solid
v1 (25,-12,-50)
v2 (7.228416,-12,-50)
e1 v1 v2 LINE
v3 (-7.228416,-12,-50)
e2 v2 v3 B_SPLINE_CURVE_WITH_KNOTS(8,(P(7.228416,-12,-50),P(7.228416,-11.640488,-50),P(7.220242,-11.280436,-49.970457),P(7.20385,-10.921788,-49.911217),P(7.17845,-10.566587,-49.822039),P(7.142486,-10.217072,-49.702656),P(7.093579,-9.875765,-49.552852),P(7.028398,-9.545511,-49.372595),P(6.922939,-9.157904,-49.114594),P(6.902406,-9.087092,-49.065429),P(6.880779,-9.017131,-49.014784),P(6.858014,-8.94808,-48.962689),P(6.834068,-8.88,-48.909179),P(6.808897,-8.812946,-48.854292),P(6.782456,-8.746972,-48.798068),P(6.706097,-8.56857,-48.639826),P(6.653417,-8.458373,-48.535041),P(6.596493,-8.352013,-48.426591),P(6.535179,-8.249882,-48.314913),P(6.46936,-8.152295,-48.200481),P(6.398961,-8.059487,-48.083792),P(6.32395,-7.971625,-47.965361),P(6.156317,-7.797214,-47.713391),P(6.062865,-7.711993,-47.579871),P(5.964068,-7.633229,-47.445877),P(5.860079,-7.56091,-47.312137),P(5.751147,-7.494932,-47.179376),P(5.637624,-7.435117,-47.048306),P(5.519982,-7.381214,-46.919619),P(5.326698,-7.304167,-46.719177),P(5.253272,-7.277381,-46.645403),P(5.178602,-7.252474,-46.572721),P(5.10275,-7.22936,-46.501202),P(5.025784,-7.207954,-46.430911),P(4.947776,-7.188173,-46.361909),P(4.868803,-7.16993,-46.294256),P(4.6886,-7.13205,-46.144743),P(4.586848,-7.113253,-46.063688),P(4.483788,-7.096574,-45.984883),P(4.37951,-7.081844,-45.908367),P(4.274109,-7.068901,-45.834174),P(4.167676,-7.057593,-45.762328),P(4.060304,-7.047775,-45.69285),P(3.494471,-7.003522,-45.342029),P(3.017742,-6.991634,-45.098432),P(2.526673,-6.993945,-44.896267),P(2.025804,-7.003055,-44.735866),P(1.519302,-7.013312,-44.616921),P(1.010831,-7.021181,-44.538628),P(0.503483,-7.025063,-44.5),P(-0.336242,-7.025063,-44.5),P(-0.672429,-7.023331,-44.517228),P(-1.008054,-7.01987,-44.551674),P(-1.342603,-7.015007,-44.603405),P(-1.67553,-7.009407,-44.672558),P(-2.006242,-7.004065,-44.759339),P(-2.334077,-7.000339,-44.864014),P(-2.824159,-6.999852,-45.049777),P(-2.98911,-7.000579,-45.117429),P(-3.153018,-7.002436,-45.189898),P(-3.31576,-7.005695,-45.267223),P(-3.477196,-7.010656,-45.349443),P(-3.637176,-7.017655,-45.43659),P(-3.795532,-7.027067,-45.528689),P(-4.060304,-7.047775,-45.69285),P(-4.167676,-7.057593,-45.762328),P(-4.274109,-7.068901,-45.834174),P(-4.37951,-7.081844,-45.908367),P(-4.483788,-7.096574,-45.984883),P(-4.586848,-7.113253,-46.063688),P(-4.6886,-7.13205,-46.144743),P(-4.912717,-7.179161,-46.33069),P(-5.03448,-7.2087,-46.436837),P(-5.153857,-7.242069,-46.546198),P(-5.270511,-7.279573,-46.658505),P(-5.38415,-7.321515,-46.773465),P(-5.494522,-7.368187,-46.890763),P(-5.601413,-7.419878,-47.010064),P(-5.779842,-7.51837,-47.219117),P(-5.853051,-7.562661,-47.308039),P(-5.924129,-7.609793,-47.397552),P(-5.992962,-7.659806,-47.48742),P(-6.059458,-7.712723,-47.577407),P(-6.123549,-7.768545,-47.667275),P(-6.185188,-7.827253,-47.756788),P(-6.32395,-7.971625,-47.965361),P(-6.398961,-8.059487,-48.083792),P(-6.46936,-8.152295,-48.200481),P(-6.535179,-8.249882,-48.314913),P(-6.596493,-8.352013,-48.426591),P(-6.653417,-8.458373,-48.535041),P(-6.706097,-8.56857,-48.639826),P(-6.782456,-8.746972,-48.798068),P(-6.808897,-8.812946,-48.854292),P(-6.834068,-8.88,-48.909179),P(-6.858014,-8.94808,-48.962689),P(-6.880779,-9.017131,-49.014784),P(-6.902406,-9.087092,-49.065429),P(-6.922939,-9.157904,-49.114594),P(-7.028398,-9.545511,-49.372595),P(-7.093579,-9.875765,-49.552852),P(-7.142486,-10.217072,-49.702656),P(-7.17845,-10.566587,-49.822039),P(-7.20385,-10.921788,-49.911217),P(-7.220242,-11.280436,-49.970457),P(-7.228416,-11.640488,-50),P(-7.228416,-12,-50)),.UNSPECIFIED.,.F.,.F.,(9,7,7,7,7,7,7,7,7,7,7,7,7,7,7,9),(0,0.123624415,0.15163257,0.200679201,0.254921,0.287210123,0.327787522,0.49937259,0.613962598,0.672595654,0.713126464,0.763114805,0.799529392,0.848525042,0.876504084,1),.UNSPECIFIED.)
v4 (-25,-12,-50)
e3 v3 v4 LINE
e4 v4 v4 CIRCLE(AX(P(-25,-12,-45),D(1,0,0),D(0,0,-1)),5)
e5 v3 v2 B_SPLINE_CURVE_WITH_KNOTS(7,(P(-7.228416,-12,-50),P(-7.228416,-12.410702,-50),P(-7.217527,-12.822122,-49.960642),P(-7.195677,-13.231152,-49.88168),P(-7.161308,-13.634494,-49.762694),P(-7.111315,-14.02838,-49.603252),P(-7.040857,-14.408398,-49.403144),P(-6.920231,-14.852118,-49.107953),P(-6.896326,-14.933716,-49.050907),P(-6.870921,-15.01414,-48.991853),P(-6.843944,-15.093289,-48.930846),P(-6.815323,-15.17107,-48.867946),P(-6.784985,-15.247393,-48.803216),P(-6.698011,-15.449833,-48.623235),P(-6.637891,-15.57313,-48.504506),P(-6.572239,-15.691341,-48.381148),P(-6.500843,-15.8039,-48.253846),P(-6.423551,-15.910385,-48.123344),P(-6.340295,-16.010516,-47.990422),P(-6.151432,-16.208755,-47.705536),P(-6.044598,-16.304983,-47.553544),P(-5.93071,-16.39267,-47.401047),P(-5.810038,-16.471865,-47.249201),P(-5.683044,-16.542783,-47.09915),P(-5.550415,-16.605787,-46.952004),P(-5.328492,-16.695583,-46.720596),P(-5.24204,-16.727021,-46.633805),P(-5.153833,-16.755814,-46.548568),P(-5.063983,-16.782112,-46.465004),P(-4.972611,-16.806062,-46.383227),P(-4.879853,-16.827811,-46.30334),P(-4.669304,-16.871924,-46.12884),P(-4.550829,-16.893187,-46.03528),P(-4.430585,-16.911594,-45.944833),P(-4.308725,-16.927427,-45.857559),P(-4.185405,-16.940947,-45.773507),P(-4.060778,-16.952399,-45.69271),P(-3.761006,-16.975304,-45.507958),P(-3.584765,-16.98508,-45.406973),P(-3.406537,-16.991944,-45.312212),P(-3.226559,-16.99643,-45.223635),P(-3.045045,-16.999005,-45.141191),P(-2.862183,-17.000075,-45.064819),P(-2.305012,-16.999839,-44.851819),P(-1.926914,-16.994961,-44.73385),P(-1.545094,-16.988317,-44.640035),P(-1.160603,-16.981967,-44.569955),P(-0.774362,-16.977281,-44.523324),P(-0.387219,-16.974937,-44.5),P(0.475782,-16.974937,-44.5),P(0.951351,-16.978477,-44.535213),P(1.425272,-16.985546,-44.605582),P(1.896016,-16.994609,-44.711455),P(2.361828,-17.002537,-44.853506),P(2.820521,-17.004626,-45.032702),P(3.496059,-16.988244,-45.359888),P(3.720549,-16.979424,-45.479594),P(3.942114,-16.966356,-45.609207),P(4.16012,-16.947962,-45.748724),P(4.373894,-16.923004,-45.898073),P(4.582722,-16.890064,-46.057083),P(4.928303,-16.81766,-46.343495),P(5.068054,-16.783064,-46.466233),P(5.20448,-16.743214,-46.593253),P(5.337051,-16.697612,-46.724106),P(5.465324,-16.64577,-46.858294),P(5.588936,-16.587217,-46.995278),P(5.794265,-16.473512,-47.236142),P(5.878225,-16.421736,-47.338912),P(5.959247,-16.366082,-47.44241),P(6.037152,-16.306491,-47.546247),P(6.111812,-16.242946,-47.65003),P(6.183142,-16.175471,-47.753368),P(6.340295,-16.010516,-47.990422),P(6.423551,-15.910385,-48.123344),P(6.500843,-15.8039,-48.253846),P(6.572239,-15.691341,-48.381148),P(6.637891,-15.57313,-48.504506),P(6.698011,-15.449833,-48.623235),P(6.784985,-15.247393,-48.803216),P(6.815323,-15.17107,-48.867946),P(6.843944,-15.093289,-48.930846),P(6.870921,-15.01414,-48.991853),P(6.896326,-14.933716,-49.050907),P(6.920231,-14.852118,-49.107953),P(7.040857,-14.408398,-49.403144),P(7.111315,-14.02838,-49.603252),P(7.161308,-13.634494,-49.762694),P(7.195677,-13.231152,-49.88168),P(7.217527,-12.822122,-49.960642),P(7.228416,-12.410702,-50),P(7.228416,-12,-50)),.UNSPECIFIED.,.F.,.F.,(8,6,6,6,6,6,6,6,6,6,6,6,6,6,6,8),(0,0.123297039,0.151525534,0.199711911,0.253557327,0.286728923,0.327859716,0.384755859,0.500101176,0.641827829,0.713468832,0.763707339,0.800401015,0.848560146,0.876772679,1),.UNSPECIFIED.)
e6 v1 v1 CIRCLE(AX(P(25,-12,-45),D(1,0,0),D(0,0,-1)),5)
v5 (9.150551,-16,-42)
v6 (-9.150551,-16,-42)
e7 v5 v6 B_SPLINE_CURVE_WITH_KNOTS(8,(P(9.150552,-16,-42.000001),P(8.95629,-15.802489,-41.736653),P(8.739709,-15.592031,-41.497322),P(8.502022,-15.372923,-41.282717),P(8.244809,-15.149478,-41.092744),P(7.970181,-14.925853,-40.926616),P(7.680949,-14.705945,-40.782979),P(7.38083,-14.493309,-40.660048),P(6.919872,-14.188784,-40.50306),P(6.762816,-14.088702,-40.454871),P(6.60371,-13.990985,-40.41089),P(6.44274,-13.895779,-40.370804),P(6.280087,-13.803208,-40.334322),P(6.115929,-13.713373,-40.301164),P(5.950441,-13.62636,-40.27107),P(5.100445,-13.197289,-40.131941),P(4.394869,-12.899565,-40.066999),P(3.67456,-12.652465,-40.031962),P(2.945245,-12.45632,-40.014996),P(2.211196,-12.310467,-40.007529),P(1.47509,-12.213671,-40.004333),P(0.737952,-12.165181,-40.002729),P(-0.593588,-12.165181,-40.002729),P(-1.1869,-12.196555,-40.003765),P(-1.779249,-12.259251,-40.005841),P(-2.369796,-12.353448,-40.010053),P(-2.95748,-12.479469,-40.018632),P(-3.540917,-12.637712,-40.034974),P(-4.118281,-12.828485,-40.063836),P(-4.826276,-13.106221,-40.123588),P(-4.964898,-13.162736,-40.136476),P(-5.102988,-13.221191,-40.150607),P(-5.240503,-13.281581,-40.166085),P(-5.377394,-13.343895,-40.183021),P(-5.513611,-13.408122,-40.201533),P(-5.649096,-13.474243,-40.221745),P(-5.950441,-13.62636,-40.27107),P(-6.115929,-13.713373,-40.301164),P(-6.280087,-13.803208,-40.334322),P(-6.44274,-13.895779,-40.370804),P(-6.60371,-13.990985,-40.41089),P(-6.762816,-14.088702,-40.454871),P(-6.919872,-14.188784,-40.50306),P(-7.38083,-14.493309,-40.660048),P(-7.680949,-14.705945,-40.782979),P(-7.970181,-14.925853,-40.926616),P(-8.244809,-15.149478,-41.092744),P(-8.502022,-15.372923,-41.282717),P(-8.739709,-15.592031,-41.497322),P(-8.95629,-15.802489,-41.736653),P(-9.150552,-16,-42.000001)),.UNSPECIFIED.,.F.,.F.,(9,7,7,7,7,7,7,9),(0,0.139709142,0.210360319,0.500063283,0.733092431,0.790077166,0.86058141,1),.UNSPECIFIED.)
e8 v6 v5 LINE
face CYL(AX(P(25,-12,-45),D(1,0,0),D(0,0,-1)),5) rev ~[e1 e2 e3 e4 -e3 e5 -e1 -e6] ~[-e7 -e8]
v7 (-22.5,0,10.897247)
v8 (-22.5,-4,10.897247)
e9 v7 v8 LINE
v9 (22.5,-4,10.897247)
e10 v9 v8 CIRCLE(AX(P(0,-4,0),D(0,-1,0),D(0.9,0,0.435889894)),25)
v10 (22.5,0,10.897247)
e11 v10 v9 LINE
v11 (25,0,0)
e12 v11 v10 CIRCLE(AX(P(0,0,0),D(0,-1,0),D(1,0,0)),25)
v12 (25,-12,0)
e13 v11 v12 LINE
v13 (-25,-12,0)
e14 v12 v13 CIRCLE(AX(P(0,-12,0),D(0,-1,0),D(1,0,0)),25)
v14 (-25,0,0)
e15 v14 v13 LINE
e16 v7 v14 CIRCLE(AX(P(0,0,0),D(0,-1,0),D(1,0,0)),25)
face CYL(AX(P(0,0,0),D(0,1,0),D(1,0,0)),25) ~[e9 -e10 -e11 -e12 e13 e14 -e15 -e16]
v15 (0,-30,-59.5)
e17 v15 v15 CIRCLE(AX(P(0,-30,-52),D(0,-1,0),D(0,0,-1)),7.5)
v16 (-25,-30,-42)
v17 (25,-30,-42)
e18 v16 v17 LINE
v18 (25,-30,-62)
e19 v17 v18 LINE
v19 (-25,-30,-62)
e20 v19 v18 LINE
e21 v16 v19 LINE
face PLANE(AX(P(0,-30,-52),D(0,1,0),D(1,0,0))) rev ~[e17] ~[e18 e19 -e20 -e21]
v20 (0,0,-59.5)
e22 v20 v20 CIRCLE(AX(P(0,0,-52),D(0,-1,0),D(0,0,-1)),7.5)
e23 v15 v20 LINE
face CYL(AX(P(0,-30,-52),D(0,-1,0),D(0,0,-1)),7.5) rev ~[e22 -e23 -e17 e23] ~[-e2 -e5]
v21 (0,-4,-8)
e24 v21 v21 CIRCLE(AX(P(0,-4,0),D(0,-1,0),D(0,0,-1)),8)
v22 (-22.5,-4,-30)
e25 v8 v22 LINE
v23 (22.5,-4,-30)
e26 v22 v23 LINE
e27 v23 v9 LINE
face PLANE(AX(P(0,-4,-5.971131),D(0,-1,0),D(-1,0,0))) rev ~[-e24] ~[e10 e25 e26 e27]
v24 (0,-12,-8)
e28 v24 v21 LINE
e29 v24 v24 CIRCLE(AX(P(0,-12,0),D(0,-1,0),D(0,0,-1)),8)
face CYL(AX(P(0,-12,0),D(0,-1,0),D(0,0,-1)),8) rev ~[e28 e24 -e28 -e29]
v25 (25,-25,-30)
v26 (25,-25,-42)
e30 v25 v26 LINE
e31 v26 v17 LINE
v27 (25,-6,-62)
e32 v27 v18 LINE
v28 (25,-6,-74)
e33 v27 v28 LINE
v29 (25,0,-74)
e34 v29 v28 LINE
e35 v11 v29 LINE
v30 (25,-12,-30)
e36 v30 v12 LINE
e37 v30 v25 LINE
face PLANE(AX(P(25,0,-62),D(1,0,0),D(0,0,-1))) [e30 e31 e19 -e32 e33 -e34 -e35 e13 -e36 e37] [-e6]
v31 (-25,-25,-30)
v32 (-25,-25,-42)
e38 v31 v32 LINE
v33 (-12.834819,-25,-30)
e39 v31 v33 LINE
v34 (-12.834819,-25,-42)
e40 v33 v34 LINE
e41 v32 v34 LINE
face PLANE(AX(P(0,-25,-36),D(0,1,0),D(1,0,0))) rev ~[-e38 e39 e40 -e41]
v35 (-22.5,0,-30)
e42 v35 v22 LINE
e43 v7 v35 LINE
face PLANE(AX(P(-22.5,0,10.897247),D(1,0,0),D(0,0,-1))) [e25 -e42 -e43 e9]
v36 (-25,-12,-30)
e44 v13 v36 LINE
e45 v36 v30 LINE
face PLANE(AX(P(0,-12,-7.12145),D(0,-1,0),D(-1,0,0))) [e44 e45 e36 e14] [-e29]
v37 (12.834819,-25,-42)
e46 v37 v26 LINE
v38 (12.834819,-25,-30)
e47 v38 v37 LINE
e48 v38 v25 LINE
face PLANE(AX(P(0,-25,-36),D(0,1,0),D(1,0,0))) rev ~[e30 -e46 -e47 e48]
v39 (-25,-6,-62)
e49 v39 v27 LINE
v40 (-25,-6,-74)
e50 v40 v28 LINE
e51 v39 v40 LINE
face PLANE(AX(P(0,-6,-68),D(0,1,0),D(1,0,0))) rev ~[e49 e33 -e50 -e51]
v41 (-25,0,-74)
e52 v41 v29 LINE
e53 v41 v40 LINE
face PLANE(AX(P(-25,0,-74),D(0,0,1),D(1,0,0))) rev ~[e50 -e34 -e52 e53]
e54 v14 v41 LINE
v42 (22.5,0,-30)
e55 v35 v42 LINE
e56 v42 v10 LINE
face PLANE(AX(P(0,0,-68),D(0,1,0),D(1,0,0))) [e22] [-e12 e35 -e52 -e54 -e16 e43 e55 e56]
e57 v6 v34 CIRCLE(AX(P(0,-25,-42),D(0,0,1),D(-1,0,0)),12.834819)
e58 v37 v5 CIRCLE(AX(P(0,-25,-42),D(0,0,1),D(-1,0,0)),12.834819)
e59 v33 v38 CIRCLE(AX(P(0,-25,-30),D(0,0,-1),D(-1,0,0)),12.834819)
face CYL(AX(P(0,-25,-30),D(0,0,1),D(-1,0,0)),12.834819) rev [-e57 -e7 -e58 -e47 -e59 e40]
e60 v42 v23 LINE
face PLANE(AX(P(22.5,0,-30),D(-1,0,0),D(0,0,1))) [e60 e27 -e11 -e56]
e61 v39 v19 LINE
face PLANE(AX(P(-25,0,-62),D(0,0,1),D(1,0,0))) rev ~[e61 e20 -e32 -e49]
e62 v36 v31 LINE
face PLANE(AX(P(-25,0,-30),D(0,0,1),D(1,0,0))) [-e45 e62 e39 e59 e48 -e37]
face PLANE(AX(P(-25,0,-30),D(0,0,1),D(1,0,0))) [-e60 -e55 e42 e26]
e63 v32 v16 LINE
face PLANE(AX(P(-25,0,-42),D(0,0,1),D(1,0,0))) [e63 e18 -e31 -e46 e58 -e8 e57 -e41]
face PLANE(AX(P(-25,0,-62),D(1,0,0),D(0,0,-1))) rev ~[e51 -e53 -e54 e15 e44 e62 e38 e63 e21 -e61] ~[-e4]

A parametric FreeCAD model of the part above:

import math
import FreeCAD as App
import Part
import Sketcher

V = App.Vector


def add_polygon(sketch, points):
    """Adds a closed chain of lines whose ends are joined by coincident constraints."""
    first, n = sketch.GeometryCount, len(points)
    for a, b in zip(points, points[1:] + points[:1]):
        sketch.addGeometry(Part.LineSegment(App.Vector(*a, 0), App.Vector(*b, 0)), False)
    for i in range(n):
        sketch.addConstraint(Sketcher.Constraint("Coincident", first + i, 2, first + (i + 1) % n, 1))

doc = App.newDocument("Part")
body = doc.addObject("PartDesign::Body", "Body")

# Sketch on XZ plane
sketch1 = body.newObject("Sketcher::SketchObject", "Sketch")
sketch1.AttachmentSupport = (doc.getObject("XZ_Plane"), [""])
sketch1.MapMode = "FlatFace"
sketch1.addGeometry(Part.LineSegment(V(-25, -30, 0), V(-25, 0, 0)), False)
sketch1.addGeometry(Part.ArcOfCircle(Part.Circle(V(0, 0, 0), V(0, 0, 1), 25), math.radians(0), math.radians(180)), False)
sketch1.addGeometry(Part.LineSegment(V(25, 0, 0), V(25, -30, 0)), False)
sketch1.addGeometry(Part.LineSegment(V(25, -30, 0), V(-25, -30, 0)), False)
sketch1.addConstraint(Sketcher.Constraint("Tangent", 0, 2, 1, 2))
sketch1.addConstraint(Sketcher.Constraint("Tangent", 1, 1, 2, 1))
sketch1.addConstraint(Sketcher.Constraint("Coincident", 2, 2, 3, 1))
sketch1.addConstraint(Sketcher.Constraint("Coincident", 3, 2, 0, 1))
sketch1.addConstraint(Sketcher.Constraint("Vertical", 0))
sketch1.addConstraint(Sketcher.Constraint("Vertical", 2))
sketch1.addConstraint(Sketcher.Constraint("Horizontal", 3))
sketch1.addConstraint(Sketcher.Constraint("Coincident", 1, 3, -1, 1))
sketch1.addConstraint(Sketcher.Constraint("Radius", 1, 25.0))
sketch1.addConstraint(Sketcher.Constraint("DistanceY", 0, 1, 0, 2, 30.0))
pad1 = body.newObject("PartDesign::Pad", "Pad")
pad1.Profile = sketch1
pad1.Length = 12

# Sketch on XZ plane
sketch2 = body.newObject("Sketcher::SketchObject", "Sketch001")
sketch2.AttachmentSupport = (doc.getObject("XZ_Plane"), [""])
sketch2.MapMode = "FlatFace"
sketch2.addGeometry(Part.LineSegment(V(22, -30, 0), V(-22, -30, 0)), False)
sketch2.addGeometry(Part.LineSegment(V(-22, -30, 0), V(-22, 11, 0)), False)
sketch2.addGeometry(Part.ArcOfCircle(Part.Circle(V(0, 0, 0), V(0, 0, 1), 25), math.radians(26), math.radians(154)), False)
sketch2.addGeometry(Part.LineSegment(V(22, 11, 0), V(22, -30, 0)), False)
sketch2.addConstraint(Sketcher.Constraint("Coincident", 0, 2, 1, 1))
sketch2.addConstraint(Sketcher.Constraint("Coincident", 1, 2, 2, 2))
sketch2.addConstraint(Sketcher.Constraint("Coincident", 2, 1, 3, 1))
sketch2.addConstraint(Sketcher.Constraint("Coincident", 3, 2, 0, 1))
sketch2.addConstraint(Sketcher.Constraint("Horizontal", 0))
sketch2.addConstraint(Sketcher.Constraint("Vertical", 1))
sketch2.addConstraint(Sketcher.Constraint("Vertical", 3))
sketch2.addConstraint(Sketcher.Constraint("Coincident", 2, 3, -1, 1))
sketch2.addConstraint(Sketcher.Constraint("Horizontal", 1, 2, 2, 1))
sketch2.addConstraint(Sketcher.Constraint("Radius", 2, 25.0))
sketch2.addConstraint(Sketcher.Constraint("DistanceX", 0, 2, 0, 1, 45.0))
sketch2.addConstraint(Sketcher.Constraint("DistanceY", 0, 2, -1, 1, 30.0))
pocket1 = body.newObject("PartDesign::Pocket", "Pocket")
pocket1.Profile = sketch2
pocket1.Length = 4
pocket1.Reversed = True

# Sketch on XZ plane
sketch3 = body.newObject("Sketcher::SketchObject", "Sketch002")
sketch3.AttachmentSupport = (doc.getObject("XZ_Plane"), [""])
sketch3.MapMode = "FlatFace"
sketch3.AttachmentOffset = App.Placement(V(0, 0, 12), App.Rotation())
sketch3.addGeometry(Part.Circle(V(0, 0, 0), V(0, 0, 1), 8), False)
sketch3.addConstraint(Sketcher.Constraint("Coincident", 0, 3, -1, 1))
sketch3.addConstraint(Sketcher.Constraint("Diameter", 0, 16.0))
pocket2 = body.newObject("PartDesign::Pocket", "Pocket001")
pocket2.Profile = sketch3
pocket2.Type = "ThroughAll"

# Sketch on XZ plane
sketch4 = body.newObject("Sketcher::SketchObject", "Sketch003")
sketch4.AttachmentSupport = (doc.getObject("XZ_Plane"), [""])
sketch4.MapMode = "FlatFace"
add_polygon(sketch4, [(-25, -42), (-25, -30), (25, -30), (25, -42)])  # lines 0-3
sketch4.addConstraint(Sketcher.Constraint("Vertical", 0))
sketch4.addConstraint(Sketcher.Constraint("Horizontal", 1))
sketch4.addConstraint(Sketcher.Constraint("Vertical", 2))
sketch4.addConstraint(Sketcher.Constraint("Horizontal", 3))
sketch4.addConstraint(Sketcher.Constraint("DistanceX", 1, 1, 1, 2, 50.0))
sketch4.addConstraint(Sketcher.Constraint("DistanceY", 0, 1, 0, 2, 12.0))
sketch4.addConstraint(Sketcher.Constraint("DistanceX", 0, 2, -1, 1, 25.0))
sketch4.addConstraint(Sketcher.Constraint("DistanceY", 0, 2, -1, 1, 30.0))
pad2 = body.newObject("PartDesign::Pad", "Pad001")
pad2.Profile = sketch4
pad2.Length = 25

# Sketch on XY plane
sketch5 = body.newObject("Sketcher::SketchObject", "Sketch004")
sketch5.AttachmentSupport = (doc.getObject("XY_Plane"), [""])
sketch5.MapMode = "FlatFace"
sketch5.AttachmentOffset = App.Placement(V(0, 0, -30), App.Rotation())
sketch5.addGeometry(Part.LineSegment(V(-13, -25, 0), V(13, -25, 0)), False)
sketch5.addGeometry(Part.ArcOfCircle(Part.Circle(V(0, -25, 0), V(0, 0, 1), 13), math.radians(0), math.radians(180)), False)
sketch5.addConstraint(Sketcher.Constraint("Coincident", 0, 1, 1, 2))
sketch5.addConstraint(Sketcher.Constraint("Coincident", 1, 1, 0, 2))
sketch5.addConstraint(Sketcher.Constraint("Horizontal", 0))
sketch5.addConstraint(Sketcher.Constraint("PointOnObject", 1, 3, -2))
sketch5.addConstraint(Sketcher.Constraint("Horizontal", 1, 3, 0, 1))
sketch5.addConstraint(Sketcher.Constraint("DistanceY", 1, 3, -1, 1, 25.0))
sketch5.addConstraint(Sketcher.Constraint("Radius", 1, 12.834819))
pocket3 = body.newObject("PartDesign::Pocket", "Pocket002")
pocket3.Profile = sketch5
pocket3.Type = "ThroughAll"

# Sketch on XZ plane
sketch6 = body.newObject("Sketcher::SketchObject", "Sketch005")
sketch6.AttachmentSupport = (doc.getObject("XZ_Plane"), [""])
sketch6.MapMode = "FlatFace"
add_polygon(sketch6, [(-25, -62), (-25, -42), (25, -42), (25, -62)])  # lines 0-3
sketch6.addConstraint(Sketcher.Constraint("Vertical", 0))
sketch6.addConstraint(Sketcher.Constraint("Horizontal", 1))
sketch6.addConstraint(Sketcher.Constraint("Vertical", 2))
sketch6.addConstraint(Sketcher.Constraint("Horizontal", 3))
sketch6.addConstraint(Sketcher.Constraint("DistanceX", 1, 1, 1, 2, 50.0))
sketch6.addConstraint(Sketcher.Constraint("DistanceY", 0, 1, 0, 2, 20.0))
sketch6.addConstraint(Sketcher.Constraint("DistanceX", 0, 2, -1, 1, 25.0))
sketch6.addConstraint(Sketcher.Constraint("DistanceY", 0, 2, -1, 1, 42.0))
pad3 = body.newObject("PartDesign::Pad", "Pad002")
pad3.Profile = sketch6
pad3.Length = 30

# Sketch on XZ plane
sketch7 = body.newObject("Sketcher::SketchObject", "Sketch006")
sketch7.AttachmentSupport = (doc.getObject("XZ_Plane"), [""])
sketch7.MapMode = "FlatFace"
add_polygon(sketch7, [(-25, -74), (-25, -62), (25, -62), (25, -74)])  # lines 0-3
sketch7.addConstraint(Sketcher.Constraint("Vertical", 0))
sketch7.addConstraint(Sketcher.Constraint("Horizontal", 1))
sketch7.addConstraint(Sketcher.Constraint("Vertical", 2))
sketch7.addConstraint(Sketcher.Constraint("Horizontal", 3))
sketch7.addConstraint(Sketcher.Constraint("DistanceX", 1, 1, 1, 2, 50.0))
sketch7.addConstraint(Sketcher.Constraint("DistanceY", 0, 1, 0, 2, 12.0))
sketch7.addConstraint(Sketcher.Constraint("DistanceX", 0, 2, -1, 1, 25.0))
sketch7.addConstraint(Sketcher.Constraint("DistanceY", 0, 2, -1, 1, 62.0))
pad4 = body.newObject("PartDesign::Pad", "Pad003")
pad4.Profile = sketch7
pad4.Length = 6

# Sketch on YZ plane
sketch8 = body.newObject("Sketcher::SketchObject", "Sketch007")
sketch8.AttachmentSupport = (doc.getObject("YZ_Plane"), [""])
sketch8.MapMode = "FlatFace"
sketch8.AttachmentOffset = App.Placement(V(0, 0, 25), App.Rotation())
sketch8.addGeometry(Part.Circle(V(-12, -45, 0), V(0, 0, 1), 5), False)
sketch8.addConstraint(Sketcher.Constraint("Diameter", 0, 10.0))
sketch8.addConstraint(Sketcher.Constraint("DistanceX", 0, 3, -1, 1, 12.0))
sketch8.addConstraint(Sketcher.Constraint("DistanceY", 0, 3, -1, 1, 45.0))
pocket4 = body.newObject("PartDesign::Pocket", "Pocket003")
pocket4.Profile = sketch8
pocket4.Type = "ThroughAll"

# Sketch on XZ plane
sketch9 = body.newObject("Sketcher::SketchObject", "Sketch008")
sketch9.AttachmentSupport = (doc.getObject("XZ_Plane"), [""])
sketch9.MapMode = "FlatFace"
sketch9.AttachmentOffset = App.Placement(V(0, 0, 30), App.Rotation())
sketch9.addGeometry(Part.Circle(V(0, -52, 0), V(0, 0, 1), 8), False)
sketch9.addConstraint(Sketcher.Constraint("PointOnObject", 0, 3, -2))
sketch9.addConstraint(Sketcher.Constraint("Diameter", 0, 15.0))
sketch9.addConstraint(Sketcher.Constraint("DistanceY", 0, 3, -1, 1, 52.0))
pocket5 = body.newObject("PartDesign::Pocket", "Pocket004")
pocket5.Profile = sketch9
pocket5.Type = "ThroughAll"

doc.recompute()
